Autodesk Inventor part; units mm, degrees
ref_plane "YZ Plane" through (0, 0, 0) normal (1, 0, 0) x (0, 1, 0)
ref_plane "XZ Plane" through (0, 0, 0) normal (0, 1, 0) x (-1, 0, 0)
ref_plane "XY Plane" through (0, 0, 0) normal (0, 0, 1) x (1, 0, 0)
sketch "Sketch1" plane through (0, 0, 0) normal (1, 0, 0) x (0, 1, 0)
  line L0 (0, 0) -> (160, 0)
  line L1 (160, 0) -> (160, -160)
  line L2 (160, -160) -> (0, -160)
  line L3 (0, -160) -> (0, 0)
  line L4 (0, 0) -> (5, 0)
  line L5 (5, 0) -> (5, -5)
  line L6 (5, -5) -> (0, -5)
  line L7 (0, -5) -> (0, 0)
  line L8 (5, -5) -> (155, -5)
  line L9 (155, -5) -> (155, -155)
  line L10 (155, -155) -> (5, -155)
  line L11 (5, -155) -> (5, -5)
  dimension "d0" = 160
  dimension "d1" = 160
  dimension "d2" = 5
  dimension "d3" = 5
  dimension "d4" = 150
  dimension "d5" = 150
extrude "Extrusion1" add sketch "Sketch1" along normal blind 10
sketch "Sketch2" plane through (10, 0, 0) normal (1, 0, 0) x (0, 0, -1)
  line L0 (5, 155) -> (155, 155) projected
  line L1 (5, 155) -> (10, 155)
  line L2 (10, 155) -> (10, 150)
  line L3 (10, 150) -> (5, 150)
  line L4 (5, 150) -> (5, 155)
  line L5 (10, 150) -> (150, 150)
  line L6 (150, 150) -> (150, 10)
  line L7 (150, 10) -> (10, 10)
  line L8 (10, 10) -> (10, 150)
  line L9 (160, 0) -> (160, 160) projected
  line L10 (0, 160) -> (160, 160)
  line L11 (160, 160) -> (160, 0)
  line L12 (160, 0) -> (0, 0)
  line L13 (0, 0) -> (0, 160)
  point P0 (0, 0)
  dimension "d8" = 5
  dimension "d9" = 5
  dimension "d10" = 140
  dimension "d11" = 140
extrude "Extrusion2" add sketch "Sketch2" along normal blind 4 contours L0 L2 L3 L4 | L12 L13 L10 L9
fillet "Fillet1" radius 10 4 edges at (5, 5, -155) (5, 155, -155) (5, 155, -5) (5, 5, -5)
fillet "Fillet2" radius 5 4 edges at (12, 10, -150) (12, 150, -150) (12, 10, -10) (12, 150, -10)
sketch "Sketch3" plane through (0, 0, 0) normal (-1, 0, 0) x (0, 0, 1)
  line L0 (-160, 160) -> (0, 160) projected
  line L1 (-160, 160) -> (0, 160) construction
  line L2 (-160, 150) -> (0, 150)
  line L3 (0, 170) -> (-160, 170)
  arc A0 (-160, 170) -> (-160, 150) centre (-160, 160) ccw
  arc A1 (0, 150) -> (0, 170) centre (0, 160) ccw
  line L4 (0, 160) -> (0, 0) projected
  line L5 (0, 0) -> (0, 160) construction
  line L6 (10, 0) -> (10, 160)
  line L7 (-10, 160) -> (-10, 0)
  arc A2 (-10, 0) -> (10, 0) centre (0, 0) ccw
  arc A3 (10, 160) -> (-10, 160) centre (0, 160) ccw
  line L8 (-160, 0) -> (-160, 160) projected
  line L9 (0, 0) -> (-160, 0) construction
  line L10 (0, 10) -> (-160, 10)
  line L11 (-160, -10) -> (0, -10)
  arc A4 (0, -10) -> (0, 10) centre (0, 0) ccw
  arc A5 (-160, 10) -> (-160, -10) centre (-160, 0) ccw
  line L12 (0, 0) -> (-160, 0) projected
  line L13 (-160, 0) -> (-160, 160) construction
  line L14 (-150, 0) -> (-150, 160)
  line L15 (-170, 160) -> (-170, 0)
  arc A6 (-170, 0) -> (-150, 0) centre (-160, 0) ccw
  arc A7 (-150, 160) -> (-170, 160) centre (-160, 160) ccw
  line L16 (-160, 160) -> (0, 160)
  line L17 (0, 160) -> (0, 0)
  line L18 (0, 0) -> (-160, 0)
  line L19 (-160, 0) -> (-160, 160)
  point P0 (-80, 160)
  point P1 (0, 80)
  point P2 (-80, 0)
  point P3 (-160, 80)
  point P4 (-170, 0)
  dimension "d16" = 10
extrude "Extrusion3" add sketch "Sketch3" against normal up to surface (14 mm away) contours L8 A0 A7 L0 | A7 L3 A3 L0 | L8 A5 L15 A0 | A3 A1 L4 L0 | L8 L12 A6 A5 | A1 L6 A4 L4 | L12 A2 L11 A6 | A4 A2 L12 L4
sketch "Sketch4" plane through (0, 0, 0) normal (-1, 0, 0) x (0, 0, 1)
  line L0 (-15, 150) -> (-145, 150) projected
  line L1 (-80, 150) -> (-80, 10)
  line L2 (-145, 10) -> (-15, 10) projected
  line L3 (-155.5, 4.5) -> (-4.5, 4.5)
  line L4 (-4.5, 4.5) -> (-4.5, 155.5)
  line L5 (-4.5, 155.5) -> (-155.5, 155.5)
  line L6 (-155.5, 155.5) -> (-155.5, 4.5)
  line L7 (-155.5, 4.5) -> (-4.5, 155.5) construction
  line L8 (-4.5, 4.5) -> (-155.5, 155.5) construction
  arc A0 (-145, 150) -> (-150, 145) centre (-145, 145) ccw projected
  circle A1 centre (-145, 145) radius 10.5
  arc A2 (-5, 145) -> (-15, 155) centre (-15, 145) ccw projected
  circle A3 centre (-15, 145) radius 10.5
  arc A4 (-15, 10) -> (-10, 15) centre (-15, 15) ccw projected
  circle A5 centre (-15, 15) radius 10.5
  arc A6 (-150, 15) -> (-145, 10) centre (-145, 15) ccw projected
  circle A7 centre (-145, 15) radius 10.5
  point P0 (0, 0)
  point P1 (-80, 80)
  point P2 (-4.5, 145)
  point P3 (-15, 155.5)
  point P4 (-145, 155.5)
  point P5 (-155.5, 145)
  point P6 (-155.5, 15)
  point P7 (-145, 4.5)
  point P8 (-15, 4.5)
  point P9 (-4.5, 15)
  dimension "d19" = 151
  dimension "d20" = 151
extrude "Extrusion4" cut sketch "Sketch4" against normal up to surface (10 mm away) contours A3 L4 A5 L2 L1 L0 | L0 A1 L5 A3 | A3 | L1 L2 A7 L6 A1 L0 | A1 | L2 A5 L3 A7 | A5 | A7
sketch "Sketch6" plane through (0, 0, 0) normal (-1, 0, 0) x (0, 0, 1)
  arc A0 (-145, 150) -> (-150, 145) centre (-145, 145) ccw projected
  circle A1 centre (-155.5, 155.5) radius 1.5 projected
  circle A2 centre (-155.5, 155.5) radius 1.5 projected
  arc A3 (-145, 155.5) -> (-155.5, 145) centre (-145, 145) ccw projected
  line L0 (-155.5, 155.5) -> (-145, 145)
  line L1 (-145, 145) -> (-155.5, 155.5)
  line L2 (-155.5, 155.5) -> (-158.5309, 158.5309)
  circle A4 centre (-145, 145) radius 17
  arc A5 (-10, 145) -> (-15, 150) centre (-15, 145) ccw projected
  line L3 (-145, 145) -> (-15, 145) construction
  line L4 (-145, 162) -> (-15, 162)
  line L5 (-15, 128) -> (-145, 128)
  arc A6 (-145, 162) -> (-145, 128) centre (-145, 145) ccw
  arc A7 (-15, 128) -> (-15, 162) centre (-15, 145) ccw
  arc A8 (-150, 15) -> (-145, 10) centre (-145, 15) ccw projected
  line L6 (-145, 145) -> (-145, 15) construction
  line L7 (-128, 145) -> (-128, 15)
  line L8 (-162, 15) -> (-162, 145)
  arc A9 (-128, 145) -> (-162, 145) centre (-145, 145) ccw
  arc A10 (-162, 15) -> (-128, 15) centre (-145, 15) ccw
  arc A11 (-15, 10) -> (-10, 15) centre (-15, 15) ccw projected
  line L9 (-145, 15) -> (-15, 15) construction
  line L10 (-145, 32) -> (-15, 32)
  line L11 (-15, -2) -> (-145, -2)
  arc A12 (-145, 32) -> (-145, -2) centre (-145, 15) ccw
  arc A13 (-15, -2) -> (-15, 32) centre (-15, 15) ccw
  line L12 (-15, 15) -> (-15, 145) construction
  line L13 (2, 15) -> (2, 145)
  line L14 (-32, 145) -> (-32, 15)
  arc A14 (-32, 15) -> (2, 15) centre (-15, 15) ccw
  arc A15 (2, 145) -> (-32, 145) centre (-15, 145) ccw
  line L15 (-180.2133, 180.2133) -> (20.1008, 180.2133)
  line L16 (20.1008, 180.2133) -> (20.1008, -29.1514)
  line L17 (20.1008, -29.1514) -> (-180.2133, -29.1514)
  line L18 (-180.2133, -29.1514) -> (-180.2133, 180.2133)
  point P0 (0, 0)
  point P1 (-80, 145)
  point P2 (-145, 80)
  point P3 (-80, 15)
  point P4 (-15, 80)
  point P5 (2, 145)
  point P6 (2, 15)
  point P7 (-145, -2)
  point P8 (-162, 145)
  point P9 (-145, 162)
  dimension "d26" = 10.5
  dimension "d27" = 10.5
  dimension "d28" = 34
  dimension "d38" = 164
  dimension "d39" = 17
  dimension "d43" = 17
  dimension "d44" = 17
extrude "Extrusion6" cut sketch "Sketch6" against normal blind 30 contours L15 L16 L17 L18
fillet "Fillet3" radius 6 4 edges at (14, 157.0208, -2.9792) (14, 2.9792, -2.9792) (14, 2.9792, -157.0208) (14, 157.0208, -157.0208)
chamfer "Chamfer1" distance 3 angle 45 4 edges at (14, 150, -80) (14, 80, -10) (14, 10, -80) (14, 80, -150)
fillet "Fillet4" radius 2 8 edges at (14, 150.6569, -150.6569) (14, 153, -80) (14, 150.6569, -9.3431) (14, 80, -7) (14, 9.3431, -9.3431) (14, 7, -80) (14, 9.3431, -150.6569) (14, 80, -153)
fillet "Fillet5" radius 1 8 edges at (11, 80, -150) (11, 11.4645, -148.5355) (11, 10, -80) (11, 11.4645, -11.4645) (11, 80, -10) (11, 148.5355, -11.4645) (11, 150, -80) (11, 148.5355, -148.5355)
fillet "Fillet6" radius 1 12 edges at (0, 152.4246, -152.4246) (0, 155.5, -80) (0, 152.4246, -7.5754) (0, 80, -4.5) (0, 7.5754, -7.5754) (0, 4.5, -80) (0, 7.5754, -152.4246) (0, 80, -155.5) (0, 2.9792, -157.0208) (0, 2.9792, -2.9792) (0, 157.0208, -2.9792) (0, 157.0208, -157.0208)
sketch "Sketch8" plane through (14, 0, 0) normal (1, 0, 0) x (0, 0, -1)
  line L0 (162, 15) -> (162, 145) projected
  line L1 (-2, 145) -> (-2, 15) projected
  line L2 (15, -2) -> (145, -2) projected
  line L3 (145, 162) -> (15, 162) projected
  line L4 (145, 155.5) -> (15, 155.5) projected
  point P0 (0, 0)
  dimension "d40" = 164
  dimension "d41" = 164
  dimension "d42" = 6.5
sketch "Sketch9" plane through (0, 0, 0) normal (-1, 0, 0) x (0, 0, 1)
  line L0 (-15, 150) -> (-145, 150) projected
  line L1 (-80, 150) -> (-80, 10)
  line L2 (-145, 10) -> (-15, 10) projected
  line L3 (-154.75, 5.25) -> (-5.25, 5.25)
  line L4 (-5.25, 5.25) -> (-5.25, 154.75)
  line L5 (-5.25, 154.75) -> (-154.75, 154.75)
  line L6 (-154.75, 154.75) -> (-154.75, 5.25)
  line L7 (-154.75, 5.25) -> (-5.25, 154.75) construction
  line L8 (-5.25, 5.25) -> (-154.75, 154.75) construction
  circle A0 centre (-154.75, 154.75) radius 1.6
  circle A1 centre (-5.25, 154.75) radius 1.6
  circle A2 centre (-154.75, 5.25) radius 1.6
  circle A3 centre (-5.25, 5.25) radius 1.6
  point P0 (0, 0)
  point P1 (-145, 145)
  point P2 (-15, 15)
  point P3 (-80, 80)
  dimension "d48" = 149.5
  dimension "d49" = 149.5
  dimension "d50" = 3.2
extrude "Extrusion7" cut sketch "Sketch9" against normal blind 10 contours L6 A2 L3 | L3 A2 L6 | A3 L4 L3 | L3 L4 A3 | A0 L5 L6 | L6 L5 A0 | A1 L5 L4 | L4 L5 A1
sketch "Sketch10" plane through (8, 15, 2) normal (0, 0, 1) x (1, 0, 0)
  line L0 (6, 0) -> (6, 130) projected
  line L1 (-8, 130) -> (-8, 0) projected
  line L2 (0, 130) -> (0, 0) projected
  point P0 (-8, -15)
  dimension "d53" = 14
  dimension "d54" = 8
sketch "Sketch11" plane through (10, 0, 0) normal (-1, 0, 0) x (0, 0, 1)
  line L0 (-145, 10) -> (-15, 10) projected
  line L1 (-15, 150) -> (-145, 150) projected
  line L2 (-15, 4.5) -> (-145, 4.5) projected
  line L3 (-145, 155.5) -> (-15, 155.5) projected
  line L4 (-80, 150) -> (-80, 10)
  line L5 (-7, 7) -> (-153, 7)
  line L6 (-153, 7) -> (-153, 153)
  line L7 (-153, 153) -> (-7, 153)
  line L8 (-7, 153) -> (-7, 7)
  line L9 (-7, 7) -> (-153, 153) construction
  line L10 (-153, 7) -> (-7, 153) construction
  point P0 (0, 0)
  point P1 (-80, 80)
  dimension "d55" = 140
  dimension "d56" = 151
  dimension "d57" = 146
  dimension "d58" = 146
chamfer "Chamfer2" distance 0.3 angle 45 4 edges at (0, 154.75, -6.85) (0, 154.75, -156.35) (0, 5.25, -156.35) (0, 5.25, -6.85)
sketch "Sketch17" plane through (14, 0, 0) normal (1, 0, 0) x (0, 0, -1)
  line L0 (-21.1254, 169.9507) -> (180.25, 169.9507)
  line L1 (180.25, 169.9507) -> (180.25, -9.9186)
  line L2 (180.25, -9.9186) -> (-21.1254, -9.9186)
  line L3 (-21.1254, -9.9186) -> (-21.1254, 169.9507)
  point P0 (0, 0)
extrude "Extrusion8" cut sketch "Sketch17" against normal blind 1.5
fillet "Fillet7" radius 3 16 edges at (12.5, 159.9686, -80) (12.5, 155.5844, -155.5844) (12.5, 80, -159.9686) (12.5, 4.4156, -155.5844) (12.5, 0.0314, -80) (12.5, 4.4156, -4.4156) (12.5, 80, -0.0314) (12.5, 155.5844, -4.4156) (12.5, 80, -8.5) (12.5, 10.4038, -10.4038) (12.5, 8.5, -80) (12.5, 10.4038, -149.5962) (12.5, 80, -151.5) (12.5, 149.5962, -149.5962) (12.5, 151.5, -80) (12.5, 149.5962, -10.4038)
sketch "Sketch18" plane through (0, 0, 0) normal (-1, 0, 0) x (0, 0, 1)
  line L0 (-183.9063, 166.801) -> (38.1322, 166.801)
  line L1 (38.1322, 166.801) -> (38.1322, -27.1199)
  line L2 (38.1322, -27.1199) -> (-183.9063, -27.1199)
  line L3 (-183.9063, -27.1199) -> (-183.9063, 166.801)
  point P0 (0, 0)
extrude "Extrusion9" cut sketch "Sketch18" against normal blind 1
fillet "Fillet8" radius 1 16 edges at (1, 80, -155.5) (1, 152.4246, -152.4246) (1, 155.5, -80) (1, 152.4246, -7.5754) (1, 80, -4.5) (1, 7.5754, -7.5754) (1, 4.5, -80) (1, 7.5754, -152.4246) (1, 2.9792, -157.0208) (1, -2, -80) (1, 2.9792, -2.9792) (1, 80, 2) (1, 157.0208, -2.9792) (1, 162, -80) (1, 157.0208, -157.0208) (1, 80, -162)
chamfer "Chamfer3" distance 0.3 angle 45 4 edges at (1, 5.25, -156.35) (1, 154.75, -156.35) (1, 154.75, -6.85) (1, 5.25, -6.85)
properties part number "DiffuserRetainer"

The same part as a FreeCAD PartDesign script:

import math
import FreeCAD as App
import Part
import Sketcher
Q = App.Units.Quantity


def edges_at(feature, points):
    """Names of the edges that pass closest to the given points."""
    edges = feature.Shape.Edges
    near = lambda p: min(range(len(edges)), key=lambda i: edges[i].distToShape(Part.Vertex(*p))[0])
    return sorted({f"Edge{near(p) + 1}" for p in points})


def add_polygon(sketch, points):
    """Adds a closed chain of lines whose ends are joined by coincident constraints."""
    first, n = sketch.GeometryCount, len(points)
    for a, b in zip(points, points[1:] + points[:1]):
        sketch.addGeometry(Part.LineSegment(App.Vector(*a, 0), App.Vector(*b, 0)), False)
    for i in range(n):
        sketch.addConstraint(Sketcher.Constraint("Coincident", first + i, 2, first + (i + 1) % n, 1))

doc = App.newDocument("Part")
body = doc.addObject("PartDesign::Body", "Body")

sketch1 = doc.addObject("Sketcher::SketchObject", "Sketch")
body.addObject(sketch1)
sketch1.AttachmentSupport = (doc.YZ_Plane, [""])
sketch1.MapMode = "FlatFace"
add_polygon(sketch1, [(0, 0), (0, -160), (160, -160), (160, 0)])
add_polygon(sketch1, [(155, -5), (155, -155), (5, -155), (5, -5)])
sketch1.addConstraint([
    Sketcher.Constraint("Vertical", 0),
    Sketcher.Constraint("Horizontal", 1),
    Sketcher.Constraint("Vertical", 2),
    Sketcher.Constraint("Horizontal", 3),
    Sketcher.Constraint("Vertical", 4),
    Sketcher.Constraint("Horizontal", 5),
    Sketcher.Constraint("Vertical", 6),
    Sketcher.Constraint("Horizontal", 7),
    Sketcher.Constraint("Coincident", 3, 2, -1, 1),
    Sketcher.Constraint("Equal", 3, 0),
    Sketcher.Constraint("Equal", 7, 4),
    Sketcher.Constraint("DistanceX", 1, 1, 1, 2, Q("160 mm")),
    Sketcher.Constraint("DistanceX", 5, 2, 5, 1, Q("150 mm")),
    Sketcher.Constraint("DistanceX", -1, 1, 5, 2, Q("5 mm")),
    Sketcher.Constraint("DistanceY", 6, 2, -1, 1, Q("5 mm")),
])
pad1 = doc.addObject("PartDesign::Pad", "Pad")
body.addObject(pad1)
pad1.Profile = sketch1
pad1.Length = 10

sketch2 = doc.addObject("Sketcher::SketchObject", "Sketch001")
body.addObject(sketch2)
sketch2.AttachmentSupport = (doc.YZ_Plane, [""])
sketch2.MapMode = "FlatFace"
sketch2.AttachmentOffset = App.Placement(App.Vector(0, 0, 10), App.Rotation())
add_polygon(sketch2, [(0, 0), (0, -160), (160, -160), (160, 0)])
add_polygon(sketch2, [(10, -10), (150, -10), (150, -150), (10, -150)])
sketch2.addConstraint([
    Sketcher.Constraint("Vertical", 0),
    Sketcher.Constraint("Horizontal", 1),
    Sketcher.Constraint("Vertical", 2),
    Sketcher.Constraint("Horizontal", 3),
    Sketcher.Constraint("Horizontal", 4),
    Sketcher.Constraint("Vertical", 5),
    Sketcher.Constraint("Horizontal", 6),
    Sketcher.Constraint("Vertical", 7),
    Sketcher.Constraint("Coincident", 3, 2, -1, 1),
    Sketcher.Constraint("Equal", 3, 0),
    Sketcher.Constraint("Equal", 6, 5),
    Sketcher.Constraint("DistanceX", 4, 1, 4, 2, Q("140 mm")),
    Sketcher.Constraint("DistanceX", 1, 1, 1, 2, Q("160 mm")),
    Sketcher.Constraint("DistanceX", -1, 1, 4, 2, Q("150 mm")),
    Sketcher.Constraint("DistanceY", 4, 2, -1, 1, Q("10 mm")),
])
pad2 = doc.addObject("PartDesign::Pad", "Pad001")
body.addObject(pad2)
pad2.Profile = sketch2
pad2.Length = 4
doc.recompute()

fillet = doc.addObject("PartDesign::Fillet", "Fillet")
body.addObject(fillet)
fillet.Base = (pad2, edges_at(pad2, [
    (5, 5, -155),
    (5, 155, -155),
    (5, 155, -5),
    (5, 5, -5),
]))
fillet.Radius = 10
doc.recompute()

fillet2 = doc.addObject("PartDesign::Fillet", "Fillet001")
body.addObject(fillet2)
fillet2.Base = (fillet, edges_at(fillet, [
    (12, 10, -150),
    (12, 150, -150),
    (12, 10, -10),
    (12, 150, -10),
]))
fillet2.Radius = 5

sketch3 = doc.addObject("Sketcher::SketchObject", "Sketch002")
body.addObject(sketch3)
sketch3.AttachmentSupport = (doc.YZ_Plane, [""])
sketch3.MapMode = "FlatFace"
sketch3.addGeometry(Part.ArcOfCircle(Part.Circle(App.Vector(160, -160, 0), App.Vector(0, 0, 1), 10), math.radians(-90), math.radians(0)), False)
sketch3.addGeometry(Part.LineSegment(App.Vector(160, -170, 0), App.Vector(0, -170, 0)), False)
sketch3.addGeometry(Part.ArcOfCircle(Part.Circle(App.Vector(0, -160, 0), App.Vector(0, 0, 1), 10), math.radians(180), math.radians(270)), False)
sketch3.addGeometry(Part.LineSegment(App.Vector(-10, -160, 0), App.Vector(-10, 0, 0)), False)
sketch3.addGeometry(Part.ArcOfCircle(Part.Circle(App.Vector(0, 0, 0), App.Vector(0, 0, 1), 10), math.radians(90), math.radians(180)), False)
sketch3.addGeometry(Part.LineSegment(App.Vector(0, 10, 0), App.Vector(160, 10, 0)), False)
sketch3.addGeometry(Part.ArcOfCircle(Part.Circle(App.Vector(160, 0, 0), App.Vector(0, 0, 1), 10), math.radians(0), math.radians(90)), False)
sketch3.addGeometry(Part.LineSegment(App.Vector(170, 0, 0), App.Vector(170, -160, 0)), False)
add_polygon(sketch3, [(160, -160), (160, 0), (0, 0), (0, -160)])
sketch3.addConstraint([
    Sketcher.Constraint("Tangent", 0, 1, 1, 1),
    Sketcher.Constraint("Tangent", 1, 2, 2, 2),
    Sketcher.Constraint("Tangent", 2, 1, 3, 1),
    Sketcher.Constraint("Tangent", 3, 2, 4, 2),
    Sketcher.Constraint("Tangent", 4, 1, 5, 1),
    Sketcher.Constraint("Tangent", 5, 2, 6, 2),
    Sketcher.Constraint("Tangent", 6, 1, 7, 1),
    Sketcher.Constraint("Tangent", 7, 2, 0, 2),
    Sketcher.Constraint("Horizontal", 1),
    Sketcher.Constraint("Vertical", 3),
    Sketcher.Constraint("Horizontal", 5),
    Sketcher.Constraint("Vertical", 7),
    Sketcher.Constraint("Vertical", 8),
    Sketcher.Constraint("Horizontal", 9),
    Sketcher.Constraint("Vertical", 10),
    Sketcher.Constraint("Horizontal", 11),
    Sketcher.Constraint("Coincident", 4, 3, -1, 1),
    Sketcher.Constraint("Coincident", 9, 2, -1, 1),
    Sketcher.Constraint("Coincident", 8, 2, 6, 3),
    Sketcher.Constraint("Coincident", 10, 2, 2, 3),
    Sketcher.Constraint("Equal", 0, 2),
    Sketcher.Constraint("Equal", 11, 3),
    Sketcher.Constraint("Radius", 0, Q("10 mm")),
    Sketcher.Constraint("DistanceX", 1, 2, 1, 1, Q("160 mm")),
])
pad3 = doc.addObject("PartDesign::Pad", "Pad002")
body.addObject(pad3)
pad3.Profile = sketch3
pad3.Length = 14

sketch4 = doc.addObject("Sketcher::SketchObject", "Sketch003")
body.addObject(sketch4)
sketch4.AttachmentSupport = (doc.YZ_Plane, [""])
sketch4.MapMode = "FlatFace"
sketch4.addGeometry([
    Part.LineSegment(App.Vector(15, -4, 0), App.Vector(145, -4, 0)),
    Part.ArcOfCircle(Part.Circle(App.Vector(145, -15, 0), App.Vector(0, 0, 1), 10), math.radians(0), math.radians(90)),
    Part.LineSegment(App.Vector(156, -15, 0), App.Vector(156, -145, 0)),
    Part.ArcOfCircle(Part.Circle(App.Vector(145, -145, 0), App.Vector(0, 0, 1), 10), math.radians(-90), math.radians(0)),
    Part.LineSegment(App.Vector(145, -156, 0), App.Vector(15, -156, 0)),
    Part.ArcOfCircle(Part.Circle(App.Vector(15, -145, 0), App.Vector(0, 0, 1), 10), math.radians(180), math.radians(270)),
    Part.LineSegment(App.Vector(4, -145, 0), App.Vector(4, -15, 0)),
    Part.ArcOfCircle(Part.Circle(App.Vector(15, -15, 0), App.Vector(0, 0, 1), 10), math.radians(90), math.radians(180)),
], False)
sketch4.addConstraint([
    Sketcher.Constraint("Tangent", 0, 2, 1, 2),
    Sketcher.Constraint("Tangent", 1, 1, 2, 1),
    Sketcher.Constraint("Tangent", 2, 2, 3, 2),
    Sketcher.Constraint("Tangent", 3, 1, 4, 1),
    Sketcher.Constraint("Tangent", 4, 2, 5, 2),
    Sketcher.Constraint("Tangent", 5, 1, 6, 1),
    Sketcher.Constraint("Tangent", 6, 2, 7, 2),
    Sketcher.Constraint("Tangent", 7, 1, 0, 1),
    Sketcher.Constraint("Horizontal", 0),
    Sketcher.Constraint("Vertical", 2),
    Sketcher.Constraint("Horizontal", 4),
    Sketcher.Constraint("Vertical", 6),
    Sketcher.Constraint("Equal", 1, 3),
    Sketcher.Constraint("Equal", 3, 5),
    Sketcher.Constraint("Equal", 5, 7),
    Sketcher.Constraint("Equal", 4, 2),
    Sketcher.Constraint("Radius", 1, Q("10.5 mm")),
    Sketcher.Constraint("DistanceX", 0, 1, 0, 2, Q("130 mm")),
    Sketcher.Constraint("DistanceX", -1, 1, 1, 3, Q("145 mm")),
    Sketcher.Constraint("DistanceY", 1, 3, -1, 1, Q("15 mm")),
])
pocket1 = doc.addObject("PartDesign::Pocket", "Pocket")
body.addObject(pocket1)
pocket1.Profile = sketch4
pocket1.Length = 10
pocket1.Reversed = True

sketch5 = doc.addObject("Sketcher::SketchObject", "Sketch004")
body.addObject(sketch5)
sketch5.AttachmentSupport = (doc.YZ_Plane, [""])
sketch5.MapMode = "FlatFace"
add_polygon(sketch5, [(180, 20), (180, -180), (-29, -180), (-29, 20)])
sketch5.addGeometry(Part.ArcOfCircle(Part.Circle(App.Vector(145, -145, 0), App.Vector(0, 0, 1), 17), math.radians(-90), math.radians(0)), False)
sketch5.addGeometry(Part.LineSegment(App.Vector(162, -145, 0), App.Vector(162, -15, 0)), False)
sketch5.addGeometry(Part.ArcOfCircle(Part.Circle(App.Vector(145, -15, 0), App.Vector(0, 0, 1), 17), math.radians(0), math.radians(90)), False)
sketch5.addGeometry(Part.LineSegment(App.Vector(145, 2, 0), App.Vector(15, 2, 0)), False)
sketch5.addGeometry(Part.ArcOfCircle(Part.Circle(App.Vector(15, -15, 0), App.Vector(0, 0, 1), 17), math.radians(90), math.radians(180)), False)
sketch5.addGeometry(Part.LineSegment(App.Vector(-2, -15, 0), App.Vector(-2, -145, 0)), False)
sketch5.addGeometry(Part.ArcOfCircle(Part.Circle(App.Vector(15, -145, 0), App.Vector(0, 0, 1), 17), math.radians(180), math.radians(270)), False)
sketch5.addGeometry(Part.LineSegment(App.Vector(15, -162, 0), App.Vector(145, -162, 0)), False)
sketch5.addConstraint([
    Sketcher.Constraint("Tangent", 4, 2, 5, 1),
    Sketcher.Constraint("Tangent", 5, 2, 6, 1),
    Sketcher.Constraint("Tangent", 6, 2, 7, 1),
    Sketcher.Constraint("Tangent", 7, 2, 8, 1),
    Sketcher.Constraint("Tangent", 8, 2, 9, 1),
    Sketcher.Constraint("Tangent", 9, 2, 10, 1),
    Sketcher.Constraint("Tangent", 10, 2, 11, 1),
    Sketcher.Constraint("Tangent", 11, 2, 4, 1),
    Sketcher.Constraint("Vertical", 0),
    Sketcher.Constraint("Horizontal", 1),
    Sketcher.Constraint("Vertical", 2),
    Sketcher.Constraint("Horizontal", 3),
    Sketcher.Constraint("Vertical", 5),
    Sketcher.Constraint("Horizontal", 7),
    Sketcher.Constraint("Vertical", 9),
    Sketcher.Constraint("Horizontal", 11),
    Sketcher.Constraint("Equal", 4, 6),
    Sketcher.Constraint("Equal", 6, 8),
    Sketcher.Constraint("Equal", 8, 10),
    Sketcher.Constraint("Equal", 11, 5),
    Sketcher.Constraint("Radius", 4, Q("17 mm")),
    Sketcher.Constraint("DistanceX", 7, 2, 7, 1, Q("130 mm")),
    Sketcher.Constraint("DistanceX", -1, 1, 4, 3, Q("145 mm")),
    Sketcher.Constraint("DistanceY", 4, 3, -1, 1, Q("145 mm")),
    Sketcher.Constraint("DistanceY", 0, 2, 0, 1, Q("200.314 mm")),
    Sketcher.Constraint("DistanceX", 1, 2, 1, 1, Q("209.3647 mm")),
    Sketcher.Constraint("DistanceX", -1, 1, 0, 2, Q("180.2133 mm")),
    Sketcher.Constraint("DistanceY", 0, 2, -1, 1, Q("180.2133 mm")),
])
pocket2 = doc.addObject("PartDesign::Pocket", "Pocket001")
body.addObject(pocket2)
pocket2.Profile = sketch5
pocket2.Length = 30
pocket2.Reversed = True
doc.recompute()

fillet3 = doc.addObject("PartDesign::Fillet", "Fillet002")
body.addObject(fillet3)
fillet3.Base = (pocket2, edges_at(pocket2, [
    (14, 157.021, -2.979),
    (14, 2.979, -2.979),
    (14, 2.979, -157.021),
    (14, 157.021, -157.021),
]))
fillet3.Radius = 6
doc.recompute()

chamfer = doc.addObject("PartDesign::Chamfer", "Chamfer")
body.addObject(chamfer)
chamfer.Base = (fillet3, edges_at(fillet3, [
    (14, 150, -80),
    (14, 80, -10),
    (14, 10, -80),
    (14, 80, -150),
]))
chamfer.Size = 3
doc.recompute()

fillet4 = doc.addObject("PartDesign::Fillet", "Fillet003")
body.addObject(fillet4)
fillet4.Base = (chamfer, edges_at(chamfer, [
    (14, 150.657, -150.657),
    (14, 153, -80),
    (14, 150.657, -9.343),
    (14, 80, -7),
    (14, 9.343, -9.343),
    (14, 7, -80),
    (14, 9.343, -150.657),
    (14, 80, -153),
]))
fillet4.Radius = 2
doc.recompute()

fillet5 = doc.addObject("PartDesign::Fillet", "Fillet004")
body.addObject(fillet5)
fillet5.Base = (fillet4, edges_at(fillet4, [
    (11, 80, -150),
    (11, 11.464, -148.536),
    (11, 10, -80),
    (11, 11.464, -11.464),
    (11, 80, -10),
    (11, 148.536, -11.464),
    (11, 150, -80),
    (11, 148.536, -148.536),
]))
fillet5.Radius = 1
doc.recompute()

fillet6 = doc.addObject("PartDesign::Fillet", "Fillet005")
body.addObject(fillet6)
fillet6.Base = (fillet5, edges_at(fillet5, [
    (0, 152.425, -152.425),
    (0, 155.5, -80),
    (0, 152.425, -7.575),
    (0, 80, -4.5),
    (0, 7.575, -7.575),
    (0, 4.5, -80),
    (0, 7.575, -152.425),
    (0, 80, -155.5),
    (0, 2.979, -157.021),
    (0, 2.979, -2.979),
    (0, 157.021, -2.979),
    (0, 157.021, -157.021),
]))
fillet6.Radius = 1

sketch6 = doc.addObject("Sketcher::SketchObject", "Sketch005")
body.addObject(sketch6)
sketch6.AttachmentSupport = (doc.YZ_Plane, [""])
sketch6.MapMode = "FlatFace"
sketch6.addGeometry([
    Part.Circle(App.Vector(5.2, -154.8, 0), App.Vector(0, 0, 1), 1.6),
    Part.Circle(App.Vector(5.2, -5.2, 0), App.Vector(0, 0, 1), 1.6),
    Part.Circle(App.Vector(154.8, -154.8, 0), App.Vector(0, 0, 1), 1.6),
    Part.Circle(App.Vector(154.8, -5.2, 0), App.Vector(0, 0, 1), 1.6),
], False)
sketch6.addConstraint([
    Sketcher.Constraint("Equal", 0, 1),
    Sketcher.Constraint("Equal", 1, 2),
    Sketcher.Constraint("Equal", 2, 3),
    Sketcher.Constraint("Horizontal", 0, 3, 2, 3),
    Sketcher.Constraint("Horizontal", 1, 3, 3, 3),
    Sketcher.Constraint("Vertical", 0, 3, 1, 3),
    Sketcher.Constraint("Vertical", 2, 3, 3, 3),
    Sketcher.Constraint("Diameter", 0, Q("3.2 mm")),
    Sketcher.Constraint("DistanceY", 0, 3, 1, 3, Q("149.5 mm")),
    Sketcher.Constraint("DistanceX", 0, 3, 2, 3, Q("149.5 mm")),
    Sketcher.Constraint("DistanceX", -1, 1, 0, 3, Q("5.25 mm")),
    Sketcher.Constraint("DistanceY", 0, 3, -1, 1, Q("154.75 mm")),
])
pocket3 = doc.addObject("PartDesign::Pocket", "Pocket002")
body.addObject(pocket3)
pocket3.Profile = sketch6
pocket3.Length = 10
pocket3.Reversed = True
doc.recompute()

chamfer2 = doc.addObject("PartDesign::Chamfer", "Chamfer001")
body.addObject(chamfer2)
chamfer2.Base = (pocket3, edges_at(pocket3, [
    (0, 154.75, -6.85),
    (0, 154.75, -156.35),
    (0, 5.25, -156.35),
    (0, 5.25, -6.85),
]))
chamfer2.Size = 0.3

sketch7 = doc.addObject("Sketcher::SketchObject", "Sketch006")
body.addObject(sketch7)
sketch7.AttachmentSupport = (doc.YZ_Plane, [""])
sketch7.MapMode = "FlatFace"
sketch7.AttachmentOffset = App.Placement(App.Vector(0, 0, 14), App.Rotation())
add_polygon(sketch7, [(170, -180), (170, 21), (-10, 21), (-10, -180)])
sketch7.addConstraint([
    Sketcher.Constraint("Vertical", 0),
    Sketcher.Constraint("Horizontal", 1),
    Sketcher.Constraint("Vertical", 2),
    Sketcher.Constraint("Horizontal", 3),
    Sketcher.Constraint("DistanceY", 2, 2, -1, 1, Q("180.25 mm")),
    Sketcher.Constraint("DistanceX", 1, 2, 1, 1, Q("179.8693 mm")),
    Sketcher.Constraint("DistanceY", 0, 1, 0, 2, Q("201.3754 mm")),
    Sketcher.Constraint("DistanceX", -1, 1, 0, 2, Q("169.9507 mm")),
])
pocket4 = doc.addObject("PartDesign::Pocket", "Pocket003")
body.addObject(pocket4)
pocket4.Profile = sketch7
pocket4.Length = 1.5
doc.recompute()

fillet7 = doc.addObject("PartDesign::Fillet", "Fillet006")
body.addObject(fillet7)
fillet7.Base = (pocket4, edges_at(pocket4, [
    (12.5, 159.969, -80),
    (12.5, 155.584, -155.584),
    (12.5, 80, -159.969),
    (12.5, 4.416, -155.584),
    (12.5, 0.031, -80),
    (12.5, 4.416, -4.416),
    (12.5, 80, -0.031),
    (12.5, 155.584, -4.416),
    (12.5, 80, -8.5),
    (12.5, 10.404, -10.404),
    (12.5, 8.5, -80),
    (12.5, 10.404, -149.596),
    (12.5, 80, -151.5),
    (12.5, 149.596, -149.596),
    (12.5, 151.5, -80),
    (12.5, 149.596, -10.404),
]))
fillet7.Radius = 3

sketch8 = doc.addObject("Sketcher::SketchObject", "Sketch007")
body.addObject(sketch8)
sketch8.AttachmentSupport = (doc.YZ_Plane, [""])
sketch8.MapMode = "FlatFace"
add_polygon(sketch8, [(167, 38), (167, -184), (-27, -184), (-27, 38)])
sketch8.addConstraint([
    Sketcher.Constraint("Vertical", 0),
    Sketcher.Constraint("Horizontal", 1),
    Sketcher.Constraint("Vertical", 2),
    Sketcher.Constraint("Horizontal", 3),
    Sketcher.Constraint("DistanceX", 1, 2, 1, 1, Q("193.921 mm")),
    Sketcher.Constraint("DistanceX", 1, 2, -1, 1, Q("27.12 mm")),
    Sketcher.Constraint("DistanceY", 0, 2, 0, 1, Q("222.0385 mm")),
    Sketcher.Constraint("DistanceY", 0, 2, -1, 1, Q("183.9063 mm")),
])
pocket5 = doc.addObject("PartDesign::Pocket", "Pocket004")
body.addObject(pocket5)
pocket5.Profile = sketch8
pocket5.Length = 1
pocket5.Reversed = True
doc.recompute()

fillet8 = doc.addObject("PartDesign::Fillet", "Fillet007")
body.addObject(fillet8)
fillet8.Base = (pocket5, edges_at(pocket5, [
    (1, 80, -155.5),
    (1, 152.425, -152.425),
    (1, 155.5, -80),
    (1, 152.425, -7.575),
    (1, 80, -4.5),
    (1, 7.575, -7.575),
    (1, 4.5, -80),
    (1, 7.575, -152.425),
    (1, 2.979, -157.021),
    (1, -2, -80),
    (1, 2.979, -2.979),
    (1, 80, 2),
    (1, 157.021, -2.979),
    (1, 162, -80),
    (1, 157.021, -157.021),
    (1, 80, -162),
]))
fillet8.Radius = 1
doc.recompute()

chamfer3 = doc.addObject("PartDesign::Chamfer", "Chamfer002")
body.addObject(chamfer3)
chamfer3.Base = (fillet8, edges_at(fillet8, [
    (1, 5.25, -156.35),
    (1, 154.75, -156.35),
    (1, 154.75, -6.85),
    (1, 5.25, -6.85),
]))
chamfer3.Size = 0.3

doc.recompute()
